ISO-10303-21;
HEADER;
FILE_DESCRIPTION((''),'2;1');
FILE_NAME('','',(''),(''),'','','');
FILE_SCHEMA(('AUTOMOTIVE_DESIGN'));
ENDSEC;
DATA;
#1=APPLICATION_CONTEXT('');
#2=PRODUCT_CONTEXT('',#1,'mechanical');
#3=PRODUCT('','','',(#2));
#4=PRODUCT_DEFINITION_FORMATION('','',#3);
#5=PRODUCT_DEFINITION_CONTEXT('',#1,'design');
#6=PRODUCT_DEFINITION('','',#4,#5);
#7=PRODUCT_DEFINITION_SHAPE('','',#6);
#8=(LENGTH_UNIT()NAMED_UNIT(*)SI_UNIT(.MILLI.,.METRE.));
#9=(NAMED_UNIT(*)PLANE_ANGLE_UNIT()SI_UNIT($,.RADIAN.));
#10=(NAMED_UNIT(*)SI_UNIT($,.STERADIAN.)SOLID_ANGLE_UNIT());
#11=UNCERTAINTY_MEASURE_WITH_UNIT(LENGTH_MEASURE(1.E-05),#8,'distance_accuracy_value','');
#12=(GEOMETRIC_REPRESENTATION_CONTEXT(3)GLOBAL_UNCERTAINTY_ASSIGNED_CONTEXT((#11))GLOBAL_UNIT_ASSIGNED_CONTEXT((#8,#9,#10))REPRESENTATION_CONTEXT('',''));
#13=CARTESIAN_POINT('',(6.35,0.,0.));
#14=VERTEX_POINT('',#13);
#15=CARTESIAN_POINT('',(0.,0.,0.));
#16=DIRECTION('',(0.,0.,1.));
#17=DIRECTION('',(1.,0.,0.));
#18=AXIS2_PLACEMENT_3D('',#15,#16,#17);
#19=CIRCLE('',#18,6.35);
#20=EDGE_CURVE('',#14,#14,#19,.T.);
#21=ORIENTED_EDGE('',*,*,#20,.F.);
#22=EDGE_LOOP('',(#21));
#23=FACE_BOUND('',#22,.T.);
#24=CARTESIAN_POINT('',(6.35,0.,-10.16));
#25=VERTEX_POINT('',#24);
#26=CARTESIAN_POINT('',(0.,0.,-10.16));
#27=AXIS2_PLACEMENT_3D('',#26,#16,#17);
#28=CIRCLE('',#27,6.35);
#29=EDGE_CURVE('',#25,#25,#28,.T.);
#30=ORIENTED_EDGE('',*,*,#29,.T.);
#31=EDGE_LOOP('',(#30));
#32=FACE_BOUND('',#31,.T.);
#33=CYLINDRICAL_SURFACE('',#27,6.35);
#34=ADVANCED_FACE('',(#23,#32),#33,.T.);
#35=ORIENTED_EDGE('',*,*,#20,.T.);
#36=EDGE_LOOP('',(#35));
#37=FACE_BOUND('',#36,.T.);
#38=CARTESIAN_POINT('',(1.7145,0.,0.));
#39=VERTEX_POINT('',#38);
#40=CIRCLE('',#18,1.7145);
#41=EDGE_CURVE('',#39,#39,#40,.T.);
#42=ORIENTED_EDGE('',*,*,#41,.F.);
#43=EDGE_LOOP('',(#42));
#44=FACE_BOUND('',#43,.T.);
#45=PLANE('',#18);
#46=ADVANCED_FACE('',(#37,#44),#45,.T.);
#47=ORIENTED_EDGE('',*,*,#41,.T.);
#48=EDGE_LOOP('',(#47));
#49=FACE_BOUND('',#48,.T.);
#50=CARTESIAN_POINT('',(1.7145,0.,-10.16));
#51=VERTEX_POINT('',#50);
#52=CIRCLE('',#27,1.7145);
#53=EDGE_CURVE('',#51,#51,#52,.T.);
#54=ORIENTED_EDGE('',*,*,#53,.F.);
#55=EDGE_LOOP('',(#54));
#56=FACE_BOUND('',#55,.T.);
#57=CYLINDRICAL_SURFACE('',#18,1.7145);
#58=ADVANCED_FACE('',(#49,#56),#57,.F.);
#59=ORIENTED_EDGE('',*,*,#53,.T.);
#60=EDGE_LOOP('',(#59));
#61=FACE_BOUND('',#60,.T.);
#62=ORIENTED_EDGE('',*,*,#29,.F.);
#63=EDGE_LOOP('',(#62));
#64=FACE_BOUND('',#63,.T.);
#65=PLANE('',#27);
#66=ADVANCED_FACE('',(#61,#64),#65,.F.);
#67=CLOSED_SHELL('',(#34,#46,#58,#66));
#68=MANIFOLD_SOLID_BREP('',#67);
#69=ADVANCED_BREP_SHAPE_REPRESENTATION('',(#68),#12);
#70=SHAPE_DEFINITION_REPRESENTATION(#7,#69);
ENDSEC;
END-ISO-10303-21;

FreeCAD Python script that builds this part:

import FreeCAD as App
import Part
import Sketcher
Q = App.Units.Quantity

doc = App.newDocument("Part")
body = doc.addObject("PartDesign::Body", "Body")

# Sketch on XY plane
sketch1 = doc.addObject("Sketcher::SketchObject", "Sketch")
body.addObject(sketch1)
sketch1.AttachmentSupport = (doc.XY_Plane, [""])
sketch1.MapMode = "FlatFace"
sketch1.addGeometry(Part.Circle(App.Vector(0, 0, 0), App.Vector(0, 0, 1), 6), False)
sketch1.addConstraint(Sketcher.Constraint("Coincident", 0, 3, -1, 1))
sketch1.addConstraint(Sketcher.Constraint("Diameter", 0, Q("0.5 in")))
pad1 = doc.addObject("PartDesign::Pad", "Pad")
body.addObject(pad1)
pad1.Profile = sketch1
pad1.Length = Q("0.4 in")
pad1.Reversed = True

# Sketch on XY plane
sketch2 = doc.addObject("Sketcher::SketchObject", "Sketch001")
body.addObject(sketch2)
sketch2.AttachmentSupport = (doc.XY_Plane, [""])
sketch2.MapMode = "FlatFace"
sketch2.addGeometry(Part.Circle(App.Vector(0, 0, 0), App.Vector(0, 0, 1), 1.7), False)
sketch2.addConstraint(Sketcher.Constraint("Coincident", 0, 3, -1, 1))
sketch2.addConstraint(Sketcher.Constraint("Diameter", 0, Q("0.135 in")))
doc.recompute()
hole = doc.addObject("PartDesign::Hole", "Hole")
body.addObject(hole)
hole.Profile = sketch2
hole.ThreadType = "None"
hole.Diameter = Q("0.135 in")
hole.DepthType = "ThroughAll"

doc.recompute()
